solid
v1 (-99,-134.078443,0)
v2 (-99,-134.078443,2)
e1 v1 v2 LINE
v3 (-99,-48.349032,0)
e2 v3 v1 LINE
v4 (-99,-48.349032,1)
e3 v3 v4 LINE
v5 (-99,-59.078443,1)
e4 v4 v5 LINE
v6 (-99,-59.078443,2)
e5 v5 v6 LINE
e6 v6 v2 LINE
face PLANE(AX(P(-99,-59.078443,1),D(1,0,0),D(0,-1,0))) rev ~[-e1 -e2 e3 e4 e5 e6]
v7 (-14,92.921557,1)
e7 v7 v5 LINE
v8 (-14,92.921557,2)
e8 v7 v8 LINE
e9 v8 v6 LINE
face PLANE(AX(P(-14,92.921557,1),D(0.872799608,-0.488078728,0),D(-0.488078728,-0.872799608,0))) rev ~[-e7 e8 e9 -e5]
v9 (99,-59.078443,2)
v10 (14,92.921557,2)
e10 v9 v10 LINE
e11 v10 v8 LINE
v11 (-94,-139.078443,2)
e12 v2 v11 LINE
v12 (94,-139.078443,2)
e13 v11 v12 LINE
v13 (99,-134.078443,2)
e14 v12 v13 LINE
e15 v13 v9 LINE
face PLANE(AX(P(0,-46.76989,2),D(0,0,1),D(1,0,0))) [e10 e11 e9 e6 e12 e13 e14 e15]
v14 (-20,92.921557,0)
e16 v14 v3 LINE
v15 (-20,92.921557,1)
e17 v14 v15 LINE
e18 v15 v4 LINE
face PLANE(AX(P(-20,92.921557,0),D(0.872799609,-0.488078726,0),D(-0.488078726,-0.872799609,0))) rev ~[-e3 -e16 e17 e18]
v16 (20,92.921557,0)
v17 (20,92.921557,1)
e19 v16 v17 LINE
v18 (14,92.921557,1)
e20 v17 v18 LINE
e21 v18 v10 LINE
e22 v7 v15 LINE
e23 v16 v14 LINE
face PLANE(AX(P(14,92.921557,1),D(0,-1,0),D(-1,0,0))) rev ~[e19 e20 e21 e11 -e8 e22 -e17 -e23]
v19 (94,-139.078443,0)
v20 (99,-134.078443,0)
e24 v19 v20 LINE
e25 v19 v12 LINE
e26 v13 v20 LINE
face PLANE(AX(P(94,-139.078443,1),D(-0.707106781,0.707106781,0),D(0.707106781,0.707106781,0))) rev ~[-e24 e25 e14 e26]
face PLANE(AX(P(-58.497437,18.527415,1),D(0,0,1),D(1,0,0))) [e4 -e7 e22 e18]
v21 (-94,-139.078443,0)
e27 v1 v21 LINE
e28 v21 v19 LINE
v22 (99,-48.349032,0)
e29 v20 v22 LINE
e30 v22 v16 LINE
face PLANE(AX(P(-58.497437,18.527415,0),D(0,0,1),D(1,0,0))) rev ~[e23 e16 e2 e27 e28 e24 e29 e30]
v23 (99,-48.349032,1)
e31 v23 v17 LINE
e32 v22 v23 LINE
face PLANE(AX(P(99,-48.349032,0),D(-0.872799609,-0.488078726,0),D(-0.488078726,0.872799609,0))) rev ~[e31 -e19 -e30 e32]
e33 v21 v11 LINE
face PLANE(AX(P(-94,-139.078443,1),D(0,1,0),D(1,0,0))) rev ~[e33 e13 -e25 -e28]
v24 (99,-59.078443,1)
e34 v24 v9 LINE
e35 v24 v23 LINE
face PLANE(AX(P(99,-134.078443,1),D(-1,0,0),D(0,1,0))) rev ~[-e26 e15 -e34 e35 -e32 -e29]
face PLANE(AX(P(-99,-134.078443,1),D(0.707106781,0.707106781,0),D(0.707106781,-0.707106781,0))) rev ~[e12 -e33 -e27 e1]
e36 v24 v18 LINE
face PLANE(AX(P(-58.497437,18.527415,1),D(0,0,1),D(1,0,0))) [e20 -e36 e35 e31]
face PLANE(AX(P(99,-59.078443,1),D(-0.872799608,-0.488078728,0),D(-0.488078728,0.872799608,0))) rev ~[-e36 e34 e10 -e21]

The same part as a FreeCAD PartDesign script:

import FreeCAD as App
import Part
import Sketcher

V = App.Vector

doc = App.newDocument("Part")
body = doc.addObject("PartDesign::Body", "Body")

sketch1 = body.newObject("Sketcher::SketchObject", "Sketch")
sketch1.AttachmentSupport = (doc.getObject("XY_Plane"), [""])
sketch1.MapMode = "FlatFace"
sketch1.addGeometry(Part.LineSegment(V(-20, 92.921557, 0), V(-99, -48.349032, 0)), False)
sketch1.addGeometry(Part.LineSegment(V(-99, -48.349032, 0), V(-99, -134.078443, 0)), False)
sketch1.addGeometry(Part.LineSegment(V(-99, -134.078443, 0), V(-94, -139.078443, 0)), False)
sketch1.addGeometry(Part.LineSegment(V(-94, -139.078443, 0), V(94, -139.078443, 0)), False)
sketch1.addGeometry(Part.LineSegment(V(94, -139.078443, 0), V(99, -134.078443, 0)), False)
sketch1.addGeometry(Part.LineSegment(V(99, -134.078443, 0), V(99, -48.349032, 0)), False)
sketch1.addGeometry(Part.LineSegment(V(99, -48.349032, 0), V(20, 92.921557, 0)), False)
sketch1.addGeometry(Part.LineSegment(V(20, 92.921557, 0), V(-20, 92.921557, 0)), False)
sketch1.addConstraint(Sketcher.Constraint("Coincident", 0, 2, 1, 1))
sketch1.addConstraint(Sketcher.Constraint("Coincident", 1, 2, 2, 1))
sketch1.addConstraint(Sketcher.Constraint("Coincident", 2, 2, 3, 1))
sketch1.addConstraint(Sketcher.Constraint("Coincident", 3, 2, 4, 1))
sketch1.addConstraint(Sketcher.Constraint("Coincident", 4, 2, 5, 1))
sketch1.addConstraint(Sketcher.Constraint("Coincident", 5, 2, 6, 1))
sketch1.addConstraint(Sketcher.Constraint("Coincident", 6, 2, 7, 1))
sketch1.addConstraint(Sketcher.Constraint("Coincident", 7, 2, 0, 1))
sketch1.addConstraint(Sketcher.Constraint("Vertical", 1))
sketch1.addConstraint(Sketcher.Constraint("Horizontal", 3))
sketch1.addConstraint(Sketcher.Constraint("Vertical", 5))
sketch1.addConstraint(Sketcher.Constraint("Horizontal", 7))
sketch1.addConstraint(Sketcher.Constraint("Symmetric", 1, 2, 4, 2, -2))
sketch1.addConstraint(Sketcher.Constraint("Perpendicular", 2, 4))
sketch1.addConstraint(Sketcher.Constraint("Horizontal", 0, 2, 5, 2))
sketch1.addConstraint(Sketcher.Constraint("Equal", 2, 4))
sketch1.addConstraint(Sketcher.Constraint("Equal", 0, 6))
sketch1.addConstraint(Sketcher.Constraint("DistanceX", 3, 1, 3, 2, 188.0))
sketch1.addConstraint(Sketcher.Constraint("DistanceX", 7, 2, 7, 1, 40.0))
sketch1.addConstraint(Sketcher.Constraint("DistanceX", 0, 2, -1, 1, 99.0))
sketch1.addConstraint(Sketcher.Constraint("DistanceY", 4, 2, 6, 2, 227.0))
sketch1.addConstraint(Sketcher.Constraint("DistanceY", 1, 2, 1, 1, 85.729411))
sketch1.addConstraint(Sketcher.Constraint("DistanceY", 0, 2, -1, 1, 48.349032))
pad1 = body.newObject("PartDesign::Pad", "Pad")
pad1.Profile = sketch1
pad1.Length = 1

sketch2 = body.newObject("Sketcher::SketchObject", "Sketch001")
sketch2.AttachmentSupport = (doc.getObject("XY_Plane"), [""])
sketch2.MapMode = "FlatFace"
sketch2.AttachmentOffset = App.Placement(V(0, 0, 1), App.Rotation())
sketch2.addGeometry(Part.LineSegment(V(14, 92.921557, 0), V(-14, 92.921557, 0)), False)
sketch2.addGeometry(Part.LineSegment(V(-14, 92.921557, 0), V(-99, -59.078443, 0)), False)
sketch2.addGeometry(Part.LineSegment(V(-99, -59.078443, 0), V(-99, -134.078443, 0)), False)
sketch2.addGeometry(Part.LineSegment(V(-99, -134.078443, 0), V(-94, -139.078443, 0)), False)
sketch2.addGeometry(Part.LineSegment(V(-94, -139.078443, 0), V(94, -139.078443, 0)), False)
sketch2.addGeometry(Part.LineSegment(V(94, -139.078443, 0), V(99, -134.078443, 0)), False)
sketch2.addGeometry(Part.LineSegment(V(99, -134.078443, 0), V(99, -59.078443, 0)), False)
sketch2.addGeometry(Part.LineSegment(V(99, -59.078443, 0), V(14, 92.921557, 0)), False)
sketch2.addConstraint(Sketcher.Constraint("Coincident", 0, 2, 1, 1))
sketch2.addConstraint(Sketcher.Constraint("Coincident", 1, 2, 2, 1))
sketch2.addConstraint(Sketcher.Constraint("Coincident", 2, 2, 3, 1))
sketch2.addConstraint(Sketcher.Constraint("Coincident", 3, 2, 4, 1))
sketch2.addConstraint(Sketcher.Constraint("Coincident", 4, 2, 5, 1))
sketch2.addConstraint(Sketcher.Constraint("Coincident", 5, 2, 6, 1))
sketch2.addConstraint(Sketcher.Constraint("Coincident", 6, 2, 7, 1))
sketch2.addConstraint(Sketcher.Constraint("Coincident", 7, 2, 0, 1))
sketch2.addConstraint(Sketcher.Constraint("Horizontal", 0))
sketch2.addConstraint(Sketcher.Constraint("Vertical", 2))
sketch2.addConstraint(Sketcher.Constraint("Horizontal", 4))
sketch2.addConstraint(Sketcher.Constraint("Vertical", 6))
sketch2.addConstraint(Sketcher.Constraint("Symmetric", 2, 2, 5, 2, -2))
sketch2.addConstraint(Sketcher.Constraint("Perpendicular", 3, 5))
sketch2.addConstraint(Sketcher.Constraint("Horizontal", 1, 2, 6, 2))
sketch2.addConstraint(Sketcher.Constraint("Equal", 3, 5))
sketch2.addConstraint(Sketcher.Constraint("Equal", 1, 7))
sketch2.addConstraint(Sketcher.Constraint("DistanceX", 0, 2, 0, 1, 28.0))
sketch2.addConstraint(Sketcher.Constraint("DistanceX", 4, 1, 4, 2, 188.0))
sketch2.addConstraint(Sketcher.Constraint("DistanceY", 2, 2, 2, 1, 75.0))
sketch2.addConstraint(Sketcher.Constraint("DistanceX", 1, 2, -1, 1, 99.0))
sketch2.addConstraint(Sketcher.Constraint("DistanceY", 1, 2, 0, 2, 152.0))
sketch2.addConstraint(Sketcher.Constraint("DistanceY", -1, 1, 0, 2, 92.921557))
pad2 = body.newObject("PartDesign::Pad", "Pad001")
pad2.Profile = sketch2
pad2.Length = 1

doc.recompute()
